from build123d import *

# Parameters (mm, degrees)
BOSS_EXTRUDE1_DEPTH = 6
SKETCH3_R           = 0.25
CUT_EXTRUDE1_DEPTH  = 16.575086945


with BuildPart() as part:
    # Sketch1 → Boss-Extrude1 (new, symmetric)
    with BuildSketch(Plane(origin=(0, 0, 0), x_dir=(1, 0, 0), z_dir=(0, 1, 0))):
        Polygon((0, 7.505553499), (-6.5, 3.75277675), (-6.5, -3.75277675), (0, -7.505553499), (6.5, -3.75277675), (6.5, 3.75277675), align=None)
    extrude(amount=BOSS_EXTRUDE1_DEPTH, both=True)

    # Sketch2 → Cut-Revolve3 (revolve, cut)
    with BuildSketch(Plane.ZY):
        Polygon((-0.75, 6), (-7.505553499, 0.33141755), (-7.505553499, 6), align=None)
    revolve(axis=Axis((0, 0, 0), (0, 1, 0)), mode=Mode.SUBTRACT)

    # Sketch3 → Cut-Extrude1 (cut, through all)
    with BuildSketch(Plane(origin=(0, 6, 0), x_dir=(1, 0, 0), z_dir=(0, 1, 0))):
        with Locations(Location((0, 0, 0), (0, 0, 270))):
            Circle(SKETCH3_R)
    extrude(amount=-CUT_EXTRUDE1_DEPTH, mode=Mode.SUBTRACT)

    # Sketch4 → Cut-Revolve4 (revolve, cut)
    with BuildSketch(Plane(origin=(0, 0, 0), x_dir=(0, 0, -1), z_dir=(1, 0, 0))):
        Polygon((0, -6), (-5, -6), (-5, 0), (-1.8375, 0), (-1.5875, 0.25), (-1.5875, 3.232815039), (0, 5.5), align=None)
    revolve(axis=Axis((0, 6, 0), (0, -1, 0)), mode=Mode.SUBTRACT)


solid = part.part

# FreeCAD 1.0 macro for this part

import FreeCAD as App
import Part
import Sketcher
from FreeCAD import Vector
Q = App.Units.Quantity


def add_polygon(sketch, points):
    """Adds a closed chain of lines whose ends are joined by coincident constraints."""
    first, n = sketch.GeometryCount, len(points)
    for a, b in zip(points, points[1:] + points[:1]):
        sketch.addGeometry(Part.LineSegment(App.Vector(*a, 0), App.Vector(*b, 0)), False)
    for i in range(n):
        sketch.addConstraint(Sketcher.Constraint("Coincident", first + i, 2, first + (i + 1) % n, 1))

doc = App.newDocument("Part")
params = doc.addObject("Spreadsheet::Sheet", "Params")
for row, (alias, value) in enumerate([
    ("pad1_length", "12 mm"),
    ("groove_angle", "360 deg"),
    ("sketch3_diameter", "0.5 mm"),
    ("sketch4_width", "6 mm"),
    ("sketch4_height", "5 mm"),
    ("sketch4_width2", "11.5 mm"),
    ("groove2_angle", "360 deg"),
], start=1):
    params.set(f"A{row}", alias)
    params.set(f"B{row}", "=" + value)
    params.setAlias(f"B{row}", alias)

body = doc.addObject("PartDesign::Body", "Body")

# Sketch on XZ plane
sketch1 = body.newObject("Sketcher::SketchObject", "Sketch")
sketch1.AttachmentSupport = (doc.getObject("XZ_Plane"), [""])
sketch1.MapMode = "FlatFace"
add_polygon(sketch1, [(0, -8), (-6, -4), (-6, 4), (0, 8), (6, 4), (6, -4)])  # lines 0-5
sketch1.addConstraint([
    Sketcher.Constraint("Vertical", 1),
    Sketcher.Constraint("Vertical", 4),
    Sketcher.Constraint("Symmetric", 0, 2, 3, 2, -1, 1),
    Sketcher.Constraint("Symmetric", 2, 2, 5, 2, -1, 1),
    Sketcher.Constraint("PointOnObject", 2, 2, -2),
    Sketcher.Constraint("Parallel", 2, 5),
    Sketcher.Constraint("Horizontal", 1, 2, 3, 2),
    Sketcher.Constraint("Angle", 0, Q("150 deg")),
    Sketcher.Constraint("DistanceX", 1, 2, 3, 2, 13.0),
    Sketcher.Constraint("DistanceY", 1, 1, 1, 2, 7.505554),
])
pad1 = body.newObject("PartDesign::Pad", "Pad")
pad1.Profile = sketch1
pad1.setExpression("Length", "Params.pad1_length")
pad1.Midplane = True

# Sketch on YZ plane
sketch2 = body.newObject("Sketcher::SketchObject", "Sketch001")
sketch2.AttachmentSupport = (doc.getObject("YZ_Plane"), [""])
sketch2.MapMode = "FlatFace"
add_polygon(sketch2, [(0, -8), (6, -1), (6, -8)])  # lines 0-2
sketch2.addConstraint([
    Sketcher.Constraint("Vertical", 1),
    Sketcher.Constraint("Horizontal", 2),
    Sketcher.Constraint("Angle", 0, Q("50 deg")),
    Sketcher.Constraint("DistanceX", -1, 1, 0, 2, 6.0),
    Sketcher.Constraint("DistanceY", 0, 2, -1, 1, 0.75),
    Sketcher.Constraint("Distance", 0, 8.818749),
])
groove = body.newObject("PartDesign::Groove", "Groove")
groove.Profile = sketch2
groove.ReferenceAxis = (sketch2, ["H_Axis"])
groove.setExpression("Angle", "Params.groove_angle")

# Sketch on XZ plane
sketch3 = body.newObject("Sketcher::SketchObject", "Sketch002")
sketch3.AttachmentSupport = (doc.getObject("XZ_Plane"), [""])
sketch3.MapMode = "FlatFace"
sketch3.AttachmentOffset = App.Placement(Vector(0, 0, -6), App.Rotation())
sketch3.addGeometry(Part.Circle(Vector(0, 0, 0), Vector(0, 0, 1), 0.25), False)
sketch3.addConstraint([
    Sketcher.Constraint("Coincident", 0, 3, -1, 1),
    Sketcher.Constraint("Diameter", 0, 0.5),
])
sketch3.setExpression("Constraints[1]", "Params.sketch3_diameter")
pocket1 = body.newObject("PartDesign::Pocket", "Pocket")
pocket1.Profile = sketch3
pocket1.Type = "ThroughAll"
pocket1.Reversed = True

# Sketch on YZ plane
sketch4 = body.newObject("Sketcher::SketchObject", "Sketch003")
sketch4.AttachmentSupport = (doc.getObject("YZ_Plane"), [""])
sketch4.MapMode = "FlatFace"
add_polygon(sketch4, [(-6, 5), (-6, 0), (5.5, 0), (3.23, 1.59), (0.25, 1.59), (0, 1.84), (0, 5)])  # lines 0-6
sketch4.addConstraint([
    Sketcher.Constraint("Vertical", 0),
    Sketcher.Constraint("Horizontal", 1),
    Sketcher.Constraint("Horizontal", 3),
    Sketcher.Constraint("Vertical", 5),
    Sketcher.Constraint("Horizontal", 6),
    Sketcher.Constraint("PointOnObject", 0, 2, -1),
    Sketcher.Constraint("PointOnObject", 4, 2, -2),
    Sketcher.Constraint("DistanceX", 6, 2, 6, 1, 6.0),
    Sketcher.Constraint("DistanceY", 0, 2, 0, 1, 5.0),
    Sketcher.Constraint("Angle", 2, Q("145 deg")),
    Sketcher.Constraint("Angle", 4, Q("135 deg")),
    Sketcher.Constraint("DistanceX", 1, 1, 1, 2, 11.5),
    Sketcher.Constraint("DistanceX", -1, 1, 3, 2, 0.25),
    Sketcher.Constraint("DistanceY", 5, 1, 5, 2, 3.1625),
])
sketch4.setExpression("Constraints[14]", "Params.sketch4_width")
sketch4.setExpression("Constraints[15]", "Params.sketch4_height")
sketch4.setExpression("Constraints[18]", "Params.sketch4_width2")
groove2 = body.newObject("PartDesign::Groove", "Groove001")
groove2.Profile = sketch4
groove2.ReferenceAxis = (sketch4, ["H_Axis"])
groove2.setExpression("Angle", "Params.groove2_angle")

doc.recompute()
